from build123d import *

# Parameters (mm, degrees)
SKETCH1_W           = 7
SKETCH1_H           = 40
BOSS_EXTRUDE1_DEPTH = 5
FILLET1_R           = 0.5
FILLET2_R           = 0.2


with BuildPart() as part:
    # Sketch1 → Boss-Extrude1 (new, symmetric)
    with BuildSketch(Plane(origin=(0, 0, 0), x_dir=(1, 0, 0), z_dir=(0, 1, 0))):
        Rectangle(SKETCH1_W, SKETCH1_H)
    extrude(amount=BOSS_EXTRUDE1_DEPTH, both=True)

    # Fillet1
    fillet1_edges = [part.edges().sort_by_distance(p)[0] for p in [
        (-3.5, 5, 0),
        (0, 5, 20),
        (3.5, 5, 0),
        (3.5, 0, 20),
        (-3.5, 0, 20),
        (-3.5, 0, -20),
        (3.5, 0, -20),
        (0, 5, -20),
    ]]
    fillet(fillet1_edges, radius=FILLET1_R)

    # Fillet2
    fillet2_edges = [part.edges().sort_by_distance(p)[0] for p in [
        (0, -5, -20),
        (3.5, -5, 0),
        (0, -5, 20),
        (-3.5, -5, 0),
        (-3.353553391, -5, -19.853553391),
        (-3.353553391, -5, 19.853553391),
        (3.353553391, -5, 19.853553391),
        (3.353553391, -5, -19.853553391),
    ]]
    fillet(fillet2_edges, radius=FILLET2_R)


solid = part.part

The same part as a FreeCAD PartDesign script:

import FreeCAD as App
import Part
import Sketcher

V = App.Vector
Q = App.Units.Quantity


def edges_at(feature, points):
    """Names of the edges that pass closest to the given points."""
    edges = feature.Shape.Edges
    near = lambda p: min(range(len(edges)), key=lambda i: edges[i].distToShape(Part.Vertex(*p))[0])
    return sorted({f"Edge{near(p) + 1}" for p in points})

doc = App.newDocument("Part")
body = doc.addObject("PartDesign::Body", "Body")

# Sketch on XZ plane
sketch1 = body.newObject("Sketcher::SketchObject", "Sketch")
sketch1.AttachmentSupport = (doc.getObject("XZ_Plane"), [""])
sketch1.MapMode = "FlatFace"
sketch1.addGeometry([
    Part.LineSegment(V(-4, -20, 0), V(-4, 20, 0)),
    Part.LineSegment(V(-4, 20, 0), V(4, 20, 0)),
    Part.LineSegment(V(4, 20, 0), V(4, -20, 0)),
    Part.LineSegment(V(4, -20, 0), V(-4, -20, 0)),
], False)
sketch1.addConstraint([
    Sketcher.Constraint("Coincident", 0, 2, 1, 1),
    Sketcher.Constraint("Coincident", 1, 2, 2, 1),
    Sketcher.Constraint("Coincident", 2, 2, 3, 1),
    Sketcher.Constraint("Coincident", 3, 2, 0, 1),
    Sketcher.Constraint("Vertical", 0),
    Sketcher.Constraint("Horizontal", 1),
    Sketcher.Constraint("Vertical", 2),
    Sketcher.Constraint("Horizontal", 3),
    Sketcher.Constraint("Symmetric", 0, 2, 2, 2, -1, 1),
    Sketcher.Constraint("DistanceX", 1, 1, 1, 2, Q("7 mm")),
    Sketcher.Constraint("DistanceY", 0, 1, 0, 2, Q("40 mm")),
])
pad1 = body.newObject("PartDesign::Pad", "Pad")
pad1.Profile = sketch1
pad1.Length = 10
pad1.Midplane = True
doc.recompute()

fillet = body.newObject("PartDesign::Fillet", "Fillet")
fillet.Base = (pad1, edges_at(pad1, [
    (-3.5, 5, 0),
    (0, 5, 20),
    (3.5, 5, 0),
    (3.5, 0, 20),
    (-3.5, 0, 20),
    (-3.5, 0, -20),
    (3.5, 0, -20),
    (0, 5, -20),
]))
fillet.Radius = 0.5
doc.recompute()

fillet2 = body.newObject("PartDesign::Fillet", "Fillet001")
fillet2.Base = (fillet, edges_at(fillet, [
    (0, -5, -20),
    (3.5, -5, 0),
    (0, -5, 20),
    (-3.5, -5, 0),
    (-3.354, -5, -19.854),
    (-3.354, -5, 19.854),
    (3.354, -5, 19.854),
    (3.354, -5, -19.854),
]))
fillet2.Radius = 0.2

doc.recompute()
